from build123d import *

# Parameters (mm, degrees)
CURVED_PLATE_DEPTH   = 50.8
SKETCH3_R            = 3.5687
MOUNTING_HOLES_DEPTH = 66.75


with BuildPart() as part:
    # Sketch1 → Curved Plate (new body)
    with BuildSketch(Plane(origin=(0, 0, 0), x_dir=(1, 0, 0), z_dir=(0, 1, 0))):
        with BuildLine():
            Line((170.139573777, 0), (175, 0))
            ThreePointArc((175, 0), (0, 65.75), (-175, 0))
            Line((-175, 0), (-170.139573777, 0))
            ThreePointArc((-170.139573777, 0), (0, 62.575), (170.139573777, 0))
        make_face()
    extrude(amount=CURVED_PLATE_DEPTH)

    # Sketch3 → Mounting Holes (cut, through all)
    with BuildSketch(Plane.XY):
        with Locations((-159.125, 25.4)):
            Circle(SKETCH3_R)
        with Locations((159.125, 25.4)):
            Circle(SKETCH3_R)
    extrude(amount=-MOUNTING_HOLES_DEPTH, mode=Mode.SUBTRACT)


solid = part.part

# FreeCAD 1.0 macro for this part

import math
import FreeCAD as App
import Part
import Sketcher

V = App.Vector
Q = App.Units.Quantity

doc = App.newDocument("Part")
body = doc.addObject("PartDesign::Body", "Body")

# Sketch on XZ plane
sketch1 = doc.addObject("Sketcher::SketchObject", "Sketch")
body.addObject(sketch1)
sketch1.AttachmentSupport = (doc.XZ_Plane, [""])
sketch1.MapMode = "FlatFace"
sketch1.addGeometry(Part.LineSegment(V(170.1, 0, 0), V(175, 0, 0)), False)
sketch1.addGeometry(Part.ArcOfCircle(Part.Circle(V(0, 200, 0), V(0, 0, 1), 265.8), math.radians(-131), math.radians(-49)), False)
sketch1.addGeometry(Part.LineSegment(V(-175, 0, 0), V(-170.1, 0, 0)), False)
sketch1.addGeometry(Part.ArcOfCircle(Part.Circle(V(0, 200, 0), V(0, 0, 1), 262.6), math.radians(-130), math.radians(-50)), False)
sketch1.addConstraint(Sketcher.Constraint("Coincident", 0, 2, 1, 2))
sketch1.addConstraint(Sketcher.Constraint("Coincident", 1, 1, 2, 1))
sketch1.addConstraint(Sketcher.Constraint("Coincident", 2, 2, 3, 1))
sketch1.addConstraint(Sketcher.Constraint("Coincident", 3, 2, 0, 1))
sketch1.addConstraint(Sketcher.Constraint("Horizontal", 0))
sketch1.addConstraint(Sketcher.Constraint("Horizontal", 2))
sketch1.addConstraint(Sketcher.Constraint("Coincident", 3, 3, 1, 3))
sketch1.addConstraint(Sketcher.Constraint("Symmetric", 0, 2, 1, 1, -1, 1))
sketch1.addConstraint(Sketcher.Constraint("PointOnObject", 1, 3, -2))
sketch1.addConstraint(Sketcher.Constraint("Radius", 1, Q("265.764734 mm")))
sketch1.addConstraint(Sketcher.Constraint("Radius", 3, Q("262.589734 mm")))
sketch1.addConstraint(Sketcher.Constraint("DistanceX", -1, 1, 0, 2, Q("175 mm")))
pad1 = doc.addObject("PartDesign::Pad", "Pad")
body.addObject(pad1)
pad1.Profile = sketch1
pad1.Length = Q("2 in")
pad1.Reversed = True

# Sketch on XY plane
sketch2 = doc.addObject("Sketcher::SketchObject", "Sketch001")
body.addObject(sketch2)
sketch2.AttachmentSupport = (doc.XY_Plane, [""])
sketch2.MapMode = "FlatFace"
sketch2.addGeometry(Part.Circle(V(-159.1, 25.4, 0), V(0, 0, 1), 3.6), False)
sketch2.addGeometry(Part.Circle(V(159.1, 25.4, 0), V(0, 0, 1), 3.6), False)
sketch2.addConstraint(Sketcher.Constraint("Equal", 0, 1))
sketch2.addConstraint(Sketcher.Constraint("Symmetric", 0, 3, 1, 3, -2))
sketch2.addConstraint(Sketcher.Constraint("Diameter", 0, Q("0.281 in")))
sketch2.addConstraint(Sketcher.Constraint("DistanceY", -1, 1, 0, 3, Q("1 in")))
sketch2.addConstraint(Sketcher.Constraint("DistanceX", 0, 3, -1, 1, Q("159.125 mm")))
pocket1 = doc.addObject("PartDesign::Pocket", "Pocket")
body.addObject(pocket1)
pocket1.Profile = sketch2
pocket1.Type = "ThroughAll"

doc.recompute()
